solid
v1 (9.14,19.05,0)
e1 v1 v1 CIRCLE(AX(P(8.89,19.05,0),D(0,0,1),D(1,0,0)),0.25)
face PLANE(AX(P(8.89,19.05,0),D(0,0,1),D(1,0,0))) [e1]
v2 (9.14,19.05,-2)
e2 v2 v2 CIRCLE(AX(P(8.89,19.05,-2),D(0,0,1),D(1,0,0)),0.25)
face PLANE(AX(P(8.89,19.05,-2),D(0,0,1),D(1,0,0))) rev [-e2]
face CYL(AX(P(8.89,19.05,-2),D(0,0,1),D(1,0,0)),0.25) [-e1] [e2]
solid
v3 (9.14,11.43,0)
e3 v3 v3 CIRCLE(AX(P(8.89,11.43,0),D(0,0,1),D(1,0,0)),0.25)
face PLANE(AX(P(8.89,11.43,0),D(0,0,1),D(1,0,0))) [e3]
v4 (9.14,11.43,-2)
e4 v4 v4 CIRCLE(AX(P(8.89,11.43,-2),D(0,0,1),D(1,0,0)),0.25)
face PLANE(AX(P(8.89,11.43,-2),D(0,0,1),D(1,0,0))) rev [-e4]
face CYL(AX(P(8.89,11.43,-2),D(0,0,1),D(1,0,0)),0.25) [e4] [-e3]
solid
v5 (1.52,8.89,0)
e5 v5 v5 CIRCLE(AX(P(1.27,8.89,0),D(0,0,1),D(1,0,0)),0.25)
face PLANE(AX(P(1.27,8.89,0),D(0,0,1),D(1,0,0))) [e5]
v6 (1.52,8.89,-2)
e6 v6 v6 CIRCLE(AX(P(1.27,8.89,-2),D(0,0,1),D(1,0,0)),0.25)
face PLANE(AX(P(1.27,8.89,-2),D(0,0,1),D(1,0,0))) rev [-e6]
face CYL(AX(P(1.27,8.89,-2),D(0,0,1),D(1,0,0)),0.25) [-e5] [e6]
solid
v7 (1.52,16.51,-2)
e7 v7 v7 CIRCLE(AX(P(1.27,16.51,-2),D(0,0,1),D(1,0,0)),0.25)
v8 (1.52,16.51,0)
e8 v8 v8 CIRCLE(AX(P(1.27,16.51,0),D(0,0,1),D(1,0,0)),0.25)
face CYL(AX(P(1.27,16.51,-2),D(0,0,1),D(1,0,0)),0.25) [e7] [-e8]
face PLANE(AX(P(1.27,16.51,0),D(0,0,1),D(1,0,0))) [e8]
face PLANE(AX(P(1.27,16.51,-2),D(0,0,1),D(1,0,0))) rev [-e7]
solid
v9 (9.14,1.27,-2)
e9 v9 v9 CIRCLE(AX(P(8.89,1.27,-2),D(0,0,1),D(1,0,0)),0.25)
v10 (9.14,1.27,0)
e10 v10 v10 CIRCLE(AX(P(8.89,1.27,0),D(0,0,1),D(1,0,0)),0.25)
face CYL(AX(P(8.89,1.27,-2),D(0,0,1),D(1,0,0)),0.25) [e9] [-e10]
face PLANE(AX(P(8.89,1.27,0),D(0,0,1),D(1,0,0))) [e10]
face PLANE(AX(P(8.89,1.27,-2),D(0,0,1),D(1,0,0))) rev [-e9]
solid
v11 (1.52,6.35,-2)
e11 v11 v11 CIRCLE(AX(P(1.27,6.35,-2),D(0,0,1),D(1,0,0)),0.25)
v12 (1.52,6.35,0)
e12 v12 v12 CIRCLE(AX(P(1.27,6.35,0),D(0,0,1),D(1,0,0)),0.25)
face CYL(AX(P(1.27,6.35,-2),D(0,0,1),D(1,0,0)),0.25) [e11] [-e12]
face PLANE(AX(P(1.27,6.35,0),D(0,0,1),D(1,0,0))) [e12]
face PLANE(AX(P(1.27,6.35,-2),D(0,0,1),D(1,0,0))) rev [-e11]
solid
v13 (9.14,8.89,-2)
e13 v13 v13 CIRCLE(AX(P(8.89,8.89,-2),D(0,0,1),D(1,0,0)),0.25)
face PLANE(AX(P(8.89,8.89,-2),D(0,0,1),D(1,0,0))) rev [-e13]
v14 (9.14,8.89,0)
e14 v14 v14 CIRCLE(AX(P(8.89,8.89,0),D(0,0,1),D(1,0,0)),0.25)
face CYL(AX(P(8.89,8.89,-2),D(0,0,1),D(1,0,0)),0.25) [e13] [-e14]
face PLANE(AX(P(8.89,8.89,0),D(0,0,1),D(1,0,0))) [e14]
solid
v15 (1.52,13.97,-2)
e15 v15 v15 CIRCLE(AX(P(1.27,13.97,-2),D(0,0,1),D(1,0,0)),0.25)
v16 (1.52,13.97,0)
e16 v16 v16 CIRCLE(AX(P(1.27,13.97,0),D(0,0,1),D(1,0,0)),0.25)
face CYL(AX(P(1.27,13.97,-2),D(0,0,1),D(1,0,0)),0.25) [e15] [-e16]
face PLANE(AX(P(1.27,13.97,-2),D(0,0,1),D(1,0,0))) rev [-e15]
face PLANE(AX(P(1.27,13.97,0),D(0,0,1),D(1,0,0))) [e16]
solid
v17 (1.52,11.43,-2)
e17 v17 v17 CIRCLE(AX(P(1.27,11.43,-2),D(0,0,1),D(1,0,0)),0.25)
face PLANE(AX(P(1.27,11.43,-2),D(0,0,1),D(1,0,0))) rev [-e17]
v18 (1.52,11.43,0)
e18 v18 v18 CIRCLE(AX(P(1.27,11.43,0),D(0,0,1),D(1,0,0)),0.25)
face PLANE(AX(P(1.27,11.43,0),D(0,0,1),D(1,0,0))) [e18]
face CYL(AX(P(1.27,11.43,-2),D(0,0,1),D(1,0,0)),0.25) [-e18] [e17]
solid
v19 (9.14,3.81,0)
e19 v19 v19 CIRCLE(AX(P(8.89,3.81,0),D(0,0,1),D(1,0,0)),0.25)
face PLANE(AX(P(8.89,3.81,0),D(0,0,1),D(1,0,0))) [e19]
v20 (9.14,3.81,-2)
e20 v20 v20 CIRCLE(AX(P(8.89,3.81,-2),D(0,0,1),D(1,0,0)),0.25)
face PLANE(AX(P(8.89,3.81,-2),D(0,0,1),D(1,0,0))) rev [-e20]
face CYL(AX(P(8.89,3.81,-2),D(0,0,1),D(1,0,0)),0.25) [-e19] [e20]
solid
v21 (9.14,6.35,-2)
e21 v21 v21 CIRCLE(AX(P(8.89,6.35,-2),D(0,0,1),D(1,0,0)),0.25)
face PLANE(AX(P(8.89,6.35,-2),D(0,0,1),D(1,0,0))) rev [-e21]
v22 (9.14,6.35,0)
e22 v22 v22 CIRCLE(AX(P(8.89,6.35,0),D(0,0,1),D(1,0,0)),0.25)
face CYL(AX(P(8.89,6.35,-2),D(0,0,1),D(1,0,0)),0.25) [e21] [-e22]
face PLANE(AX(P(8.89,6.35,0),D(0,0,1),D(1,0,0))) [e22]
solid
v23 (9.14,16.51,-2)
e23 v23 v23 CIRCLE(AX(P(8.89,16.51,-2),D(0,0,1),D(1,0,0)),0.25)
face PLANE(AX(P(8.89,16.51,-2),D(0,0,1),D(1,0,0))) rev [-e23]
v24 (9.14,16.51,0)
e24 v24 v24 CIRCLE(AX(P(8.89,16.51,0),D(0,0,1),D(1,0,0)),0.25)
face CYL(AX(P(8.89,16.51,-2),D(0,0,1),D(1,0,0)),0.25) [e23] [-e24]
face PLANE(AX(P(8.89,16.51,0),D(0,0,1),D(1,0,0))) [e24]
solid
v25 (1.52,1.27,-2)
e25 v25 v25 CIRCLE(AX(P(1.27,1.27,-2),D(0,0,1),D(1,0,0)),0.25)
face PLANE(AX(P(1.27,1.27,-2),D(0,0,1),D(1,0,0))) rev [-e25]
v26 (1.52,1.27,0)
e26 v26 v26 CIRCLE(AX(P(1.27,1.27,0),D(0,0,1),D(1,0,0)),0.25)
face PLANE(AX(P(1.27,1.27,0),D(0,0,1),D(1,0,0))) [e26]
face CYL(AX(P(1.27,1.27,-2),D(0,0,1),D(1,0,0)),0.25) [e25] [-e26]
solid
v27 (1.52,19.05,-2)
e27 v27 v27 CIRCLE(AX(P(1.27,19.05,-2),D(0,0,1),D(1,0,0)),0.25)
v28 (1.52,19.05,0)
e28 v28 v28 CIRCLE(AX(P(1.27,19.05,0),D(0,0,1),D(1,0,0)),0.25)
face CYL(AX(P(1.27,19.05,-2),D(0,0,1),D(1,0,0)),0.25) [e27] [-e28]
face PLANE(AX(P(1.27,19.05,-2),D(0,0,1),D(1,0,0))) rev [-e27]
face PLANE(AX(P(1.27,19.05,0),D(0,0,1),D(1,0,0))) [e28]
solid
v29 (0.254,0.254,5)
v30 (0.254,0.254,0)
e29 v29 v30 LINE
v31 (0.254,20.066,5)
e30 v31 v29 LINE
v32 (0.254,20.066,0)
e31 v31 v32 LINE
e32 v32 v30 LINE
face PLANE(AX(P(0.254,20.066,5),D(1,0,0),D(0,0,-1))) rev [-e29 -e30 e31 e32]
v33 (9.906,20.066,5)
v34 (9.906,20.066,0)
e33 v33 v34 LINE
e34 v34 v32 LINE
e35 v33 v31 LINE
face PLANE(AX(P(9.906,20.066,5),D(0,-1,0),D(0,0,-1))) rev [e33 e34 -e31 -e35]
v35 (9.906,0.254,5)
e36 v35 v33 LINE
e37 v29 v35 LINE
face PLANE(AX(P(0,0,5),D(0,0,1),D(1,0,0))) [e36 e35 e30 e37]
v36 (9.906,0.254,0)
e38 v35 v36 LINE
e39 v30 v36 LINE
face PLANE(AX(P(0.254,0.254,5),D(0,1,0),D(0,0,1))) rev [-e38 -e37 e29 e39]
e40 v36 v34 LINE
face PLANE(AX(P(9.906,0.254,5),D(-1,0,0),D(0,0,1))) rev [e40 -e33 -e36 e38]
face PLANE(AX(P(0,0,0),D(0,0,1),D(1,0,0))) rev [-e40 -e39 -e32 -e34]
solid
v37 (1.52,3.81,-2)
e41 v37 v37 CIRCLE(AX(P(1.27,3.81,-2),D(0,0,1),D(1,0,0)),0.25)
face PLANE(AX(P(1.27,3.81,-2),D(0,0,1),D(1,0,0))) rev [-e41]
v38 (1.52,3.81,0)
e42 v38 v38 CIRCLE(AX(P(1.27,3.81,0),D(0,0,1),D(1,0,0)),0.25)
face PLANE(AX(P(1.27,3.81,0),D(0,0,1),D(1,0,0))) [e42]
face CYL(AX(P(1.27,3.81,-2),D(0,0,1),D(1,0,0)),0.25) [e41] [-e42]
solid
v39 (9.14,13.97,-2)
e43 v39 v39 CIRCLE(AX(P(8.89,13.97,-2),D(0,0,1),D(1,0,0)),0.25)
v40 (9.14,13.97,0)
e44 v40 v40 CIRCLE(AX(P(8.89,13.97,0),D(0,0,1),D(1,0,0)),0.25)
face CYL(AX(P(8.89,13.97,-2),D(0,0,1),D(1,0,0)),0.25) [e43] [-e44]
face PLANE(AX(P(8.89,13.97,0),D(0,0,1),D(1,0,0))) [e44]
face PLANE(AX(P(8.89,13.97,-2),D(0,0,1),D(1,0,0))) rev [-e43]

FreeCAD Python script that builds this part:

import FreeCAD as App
import Part
import Sketcher


def add_polygon(sketch, points):
    """Adds a closed chain of lines whose ends are joined by coincident constraints."""
    first, n = sketch.GeometryCount, len(points)
    for a, b in zip(points, points[1:] + points[:1]):
        sketch.addGeometry(Part.LineSegment(App.Vector(*a, 0), App.Vector(*b, 0)), False)
    for i in range(n):
        sketch.addConstraint(Sketcher.Constraint("Coincident", first + i, 2, first + (i + 1) % n, 1))

doc = App.newDocument("Part")
body = doc.addObject("PartDesign::Body", "Body")

# Sketch on XY plane
sketch1 = body.newObject("Sketcher::SketchObject", "Sketch")
sketch1.AttachmentSupport = (doc.getObject("XY_Plane"), [""])
sketch1.MapMode = "FlatFace"
add_polygon(sketch1, [(0.254, 20.066), (0.254, 0.254), (9.906, 0.254), (9.906, 20.066)])  # lines 0-3
sketch1.addConstraint([
    Sketcher.Constraint("Vertical", 0),
    Sketcher.Constraint("Horizontal", 1),
    Sketcher.Constraint("Vertical", 2),
    Sketcher.Constraint("Horizontal", 3),
    Sketcher.Constraint("DistanceX", 1, 1, 1, 2, 9.652),
    Sketcher.Constraint("DistanceY", 0, 2, 0, 1, 19.812),
    Sketcher.Constraint("DistanceX", -1, 1, 0, 2, 0.254),
    Sketcher.Constraint("DistanceY", -1, 1, 0, 2, 0.254),
])
pad1 = body.newObject("PartDesign::Pad", "Pad")
pad1.Profile = sketch1
pad1.Length = 5
body2 = doc.addObject("PartDesign::Body", "Body001")

# Sketch on XY plane
sketch2 = body2.newObject("Sketcher::SketchObject", "Sketch001")
sketch2.AttachmentSupport = (doc.getObject("XY_Plane001"), [""])
sketch2.MapMode = "FlatFace"
sketch2.addGeometry(Part.Circle(App.Vector(1.27, 1.27, 0), App.Vector(0, 0, 1), 0.25), False)
sketch2.addConstraint([
    Sketcher.Constraint("Diameter", 0, 0.5),
    Sketcher.Constraint("DistanceX", -1, 1, 0, 3, 1.27),
    Sketcher.Constraint("DistanceY", -1, 1, 0, 3, 1.27),
])
pad2 = body2.newObject("PartDesign::Pad", "Pad001")
pad2.Profile = sketch2
pad2.Length = 2
pad2.Reversed = True
body3 = doc.addObject("PartDesign::Body", "Body002")

# Sketch on XY plane
sketch3 = body3.newObject("Sketcher::SketchObject", "Sketch002")
sketch3.AttachmentSupport = (doc.getObject("XY_Plane002"), [""])
sketch3.MapMode = "FlatFace"
sketch3.addGeometry(Part.Circle(App.Vector(1.27, 3.81, 0), App.Vector(0, 0, 1), 0.25), False)
sketch3.addConstraint([
    Sketcher.Constraint("Diameter", 0, 0.5),
    Sketcher.Constraint("DistanceX", -1, 1, 0, 3, 1.27),
    Sketcher.Constraint("DistanceY", -1, 1, 0, 3, 3.81),
])
pad3 = body3.newObject("PartDesign::Pad", "Pad002")
pad3.Profile = sketch3
pad3.Length = 2
pad3.Reversed = True
body4 = doc.addObject("PartDesign::Body", "Body003")

# Sketch on XY plane
sketch4 = body4.newObject("Sketcher::SketchObject", "Sketch003")
sketch4.AttachmentSupport = (doc.getObject("XY_Plane003"), [""])
sketch4.MapMode = "FlatFace"
sketch4.addGeometry(Part.Circle(App.Vector(1.27, 6.35, 0), App.Vector(0, 0, 1), 0.25), False)
sketch4.addConstraint([
    Sketcher.Constraint("Diameter", 0, 0.5),
    Sketcher.Constraint("DistanceX", -1, 1, 0, 3, 1.27),
    Sketcher.Constraint("DistanceY", -1, 1, 0, 3, 6.35),
])
pad4 = body4.newObject("PartDesign::Pad", "Pad003")
pad4.Profile = sketch4
pad4.Length = 2
pad4.Reversed = True
body5 = doc.addObject("PartDesign::Body", "Body004")

# Sketch on XY plane
sketch5 = body5.newObject("Sketcher::SketchObject", "Sketch004")
sketch5.AttachmentSupport = (doc.getObject("XY_Plane004"), [""])
sketch5.MapMode = "FlatFace"
sketch5.addGeometry(Part.Circle(App.Vector(1.27, 8.89, 0), App.Vector(0, 0, 1), 0.25), False)
sketch5.addConstraint([
    Sketcher.Constraint("Diameter", 0, 0.5),
    Sketcher.Constraint("DistanceX", -1, 1, 0, 3, 1.27),
    Sketcher.Constraint("DistanceY", -1, 1, 0, 3, 8.89),
])
pad5 = body5.newObject("PartDesign::Pad", "Pad004")
pad5.Profile = sketch5
pad5.Length = 2
pad5.Reversed = True
body6 = doc.addObject("PartDesign::Body", "Body005")

# Sketch on XY plane
sketch6 = body6.newObject("Sketcher::SketchObject", "Sketch005")
sketch6.AttachmentSupport = (doc.getObject("XY_Plane005"), [""])
sketch6.MapMode = "FlatFace"
sketch6.addGeometry(Part.Circle(App.Vector(1.27, 11.43, 0), App.Vector(0, 0, 1), 0.25), False)
sketch6.addConstraint([
    Sketcher.Constraint("Diameter", 0, 0.5),
    Sketcher.Constraint("DistanceX", -1, 1, 0, 3, 1.27),
    Sketcher.Constraint("DistanceY", -1, 1, 0, 3, 11.43),
])
pad6 = body6.newObject("PartDesign::Pad", "Pad005")
pad6.Profile = sketch6
pad6.Length = 2
pad6.Reversed = True
body7 = doc.addObject("PartDesign::Body", "Body006")

# Sketch on XY plane
sketch7 = body7.newObject("Sketcher::SketchObject", "Sketch006")
sketch7.AttachmentSupport = (doc.getObject("XY_Plane006"), [""])
sketch7.MapMode = "FlatFace"
sketch7.addGeometry(Part.Circle(App.Vector(1.27, 13.97, 0), App.Vector(0, 0, 1), 0.25), False)
sketch7.addConstraint([
    Sketcher.Constraint("Diameter", 0, 0.5),
    Sketcher.Constraint("DistanceX", -1, 1, 0, 3, 1.27),
    Sketcher.Constraint("DistanceY", -1, 1, 0, 3, 13.97),
])
pad7 = body7.newObject("PartDesign::Pad", "Pad006")
pad7.Profile = sketch7
pad7.Length = 2
pad7.Reversed = True
body8 = doc.addObject("PartDesign::Body", "Body007")

# Sketch on XY plane
sketch8 = body8.newObject("Sketcher::SketchObject", "Sketch007")
sketch8.AttachmentSupport = (doc.getObject("XY_Plane007"), [""])
sketch8.MapMode = "FlatFace"
sketch8.addGeometry(Part.Circle(App.Vector(1.27, 16.51, 0), App.Vector(0, 0, 1), 0.25), False)
sketch8.addConstraint([
    Sketcher.Constraint("Diameter", 0, 0.5),
    Sketcher.Constraint("DistanceX", -1, 1, 0, 3, 1.27),
    Sketcher.Constraint("DistanceY", -1, 1, 0, 3, 16.51),
])
pad8 = body8.newObject("PartDesign::Pad", "Pad007")
pad8.Profile = sketch8
pad8.Length = 2
pad8.Reversed = True
body9 = doc.addObject("PartDesign::Body", "Body008")

# Sketch on XY plane
sketch9 = body9.newObject("Sketcher::SketchObject", "Sketch008")
sketch9.AttachmentSupport = (doc.getObject("XY_Plane008"), [""])
sketch9.MapMode = "FlatFace"
sketch9.addGeometry(Part.Circle(App.Vector(1.27, 19.05, 0), App.Vector(0, 0, 1), 0.25), False)
sketch9.addConstraint([
    Sketcher.Constraint("Diameter", 0, 0.5),
    Sketcher.Constraint("DistanceX", -1, 1, 0, 3, 1.27),
    Sketcher.Constraint("DistanceY", -1, 1, 0, 3, 19.05),
])
pad9 = body9.newObject("PartDesign::Pad", "Pad008")
pad9.Profile = sketch9
pad9.Length = 2
pad9.Reversed = True
body10 = doc.addObject("PartDesign::Body", "Body009")

# Sketch on XY plane
sketch10 = body10.newObject("Sketcher::SketchObject", "Sketch009")
sketch10.AttachmentSupport = (doc.getObject("XY_Plane009"), [""])
sketch10.MapMode = "FlatFace"
sketch10.addGeometry(Part.Circle(App.Vector(8.89, 1.27, 0), App.Vector(0, 0, 1), 0.25), False)
sketch10.addConstraint([
    Sketcher.Constraint("Diameter", 0, 0.5),
    Sketcher.Constraint("DistanceX", -1, 1, 0, 3, 8.89),
    Sketcher.Constraint("DistanceY", -1, 1, 0, 3, 1.27),
])
pad10 = body10.newObject("PartDesign::Pad", "Pad009")
pad10.Profile = sketch10
pad10.Length = 2
pad10.Reversed = True
body11 = doc.addObject("PartDesign::Body", "Body010")

# Sketch on XY plane
sketch11 = body11.newObject("Sketcher::SketchObject", "Sketch010")
sketch11.AttachmentSupport = (doc.getObject("XY_Plane010"), [""])
sketch11.MapMode = "FlatFace"
sketch11.addGeometry(Part.Circle(App.Vector(8.89, 3.81, 0), App.Vector(0, 0, 1), 0.25), False)
sketch11.addConstraint([
    Sketcher.Constraint("Diameter", 0, 0.5),
    Sketcher.Constraint("DistanceX", -1, 1, 0, 3, 8.89),
    Sketcher.Constraint("DistanceY", -1, 1, 0, 3, 3.81),
])
pad11 = body11.newObject("PartDesign::Pad", "Pad010")
pad11.Profile = sketch11
pad11.Length = 2
pad11.Reversed = True
body12 = doc.addObject("PartDesign::Body", "Body011")

# Sketch on XY plane
sketch12 = body12.newObject("Sketcher::SketchObject", "Sketch011")
sketch12.AttachmentSupport = (doc.getObject("XY_Plane011"), [""])
sketch12.MapMode = "FlatFace"
sketch12.addGeometry(Part.Circle(App.Vector(8.89, 6.35, 0), App.Vector(0, 0, 1), 0.25), False)
sketch12.addConstraint([
    Sketcher.Constraint("Diameter", 0, 0.5),
    Sketcher.Constraint("DistanceX", -1, 1, 0, 3, 8.89),
    Sketcher.Constraint("DistanceY", -1, 1, 0, 3, 6.35),
])
pad12 = body12.newObject("PartDesign::Pad", "Pad011")
pad12.Profile = sketch12
pad12.Length = 2
pad12.Reversed = True
body13 = doc.addObject("PartDesign::Body", "Body012")

# Sketch on XY plane
sketch13 = body13.newObject("Sketcher::SketchObject", "Sketch012")
sketch13.AttachmentSupport = (doc.getObject("XY_Plane012"), [""])
sketch13.MapMode = "FlatFace"
sketch13.addGeometry(Part.Circle(App.Vector(8.89, 8.89, 0), App.Vector(0, 0, 1), 0.25), False)
sketch13.addConstraint([
    Sketcher.Constraint("Diameter", 0, 0.5),
    Sketcher.Constraint("DistanceX", -1, 1, 0, 3, 8.89),
    Sketcher.Constraint("DistanceY", -1, 1, 0, 3, 8.89),
])
pad13 = body13.newObject("PartDesign::Pad", "Pad012")
pad13.Profile = sketch13
pad13.Length = 2
pad13.Reversed = True
body14 = doc.addObject("PartDesign::Body", "Body013")

# Sketch on XY plane
sketch14 = body14.newObject("Sketcher::SketchObject", "Sketch013")
sketch14.AttachmentSupport = (doc.getObject("XY_Plane013"), [""])
sketch14.MapMode = "FlatFace"
sketch14.addGeometry(Part.Circle(App.Vector(8.89, 11.43, 0), App.Vector(0, 0, 1), 0.25), False)
sketch14.addConstraint([
    Sketcher.Constraint("Diameter", 0, 0.5),
    Sketcher.Constraint("DistanceX", -1, 1, 0, 3, 8.89),
    Sketcher.Constraint("DistanceY", -1, 1, 0, 3, 11.43),
])
pad14 = body14.newObject("PartDesign::Pad", "Pad013")
pad14.Profile = sketch14
pad14.Length = 2
pad14.Reversed = True
body15 = doc.addObject("PartDesign::Body", "Body014")

# Sketch on XY plane
sketch15 = body15.newObject("Sketcher::SketchObject", "Sketch014")
sketch15.AttachmentSupport = (doc.getObject("XY_Plane014"), [""])
sketch15.MapMode = "FlatFace"
sketch15.addGeometry(Part.Circle(App.Vector(8.89, 13.97, 0), App.Vector(0, 0, 1), 0.25), False)
sketch15.addConstraint([
    Sketcher.Constraint("Diameter", 0, 0.5),
    Sketcher.Constraint("DistanceX", -1, 1, 0, 3, 8.89),
    Sketcher.Constraint("DistanceY", -1, 1, 0, 3, 13.97),
])
pad15 = body15.newObject("PartDesign::Pad", "Pad014")
pad15.Profile = sketch15
pad15.Length = 2
pad15.Reversed = True
body16 = doc.addObject("PartDesign::Body", "Body015")

# Sketch on XY plane
sketch16 = body16.newObject("Sketcher::SketchObject", "Sketch015")
sketch16.AttachmentSupport = (doc.getObject("XY_Plane015"), [""])
sketch16.MapMode = "FlatFace"
sketch16.addGeometry(Part.Circle(App.Vector(8.89, 16.51, 0), App.Vector(0, 0, 1), 0.25), False)
sketch16.addConstraint([
    Sketcher.Constraint("Diameter", 0, 0.5),
    Sketcher.Constraint("DistanceX", -1, 1, 0, 3, 8.89),
    Sketcher.Constraint("DistanceY", -1, 1, 0, 3, 16.51),
])
pad16 = body16.newObject("PartDesign::Pad", "Pad015")
pad16.Profile = sketch16
pad16.Length = 2
pad16.Reversed = True
body17 = doc.addObject("PartDesign::Body", "Body016")

# Sketch on XY plane
sketch17 = body17.newObject("Sketcher::SketchObject", "Sketch016")
sketch17.AttachmentSupport = (doc.getObject("XY_Plane016"), [""])
sketch17.MapMode = "FlatFace"
sketch17.addGeometry(Part.Circle(App.Vector(8.89, 19.05, 0), App.Vector(0, 0, 1), 0.25), False)
sketch17.addConstraint([
    Sketcher.Constraint("Diameter", 0, 0.5),
    Sketcher.Constraint("DistanceX", -1, 1, 0, 3, 8.89),
    Sketcher.Constraint("DistanceY", -1, 1, 0, 3, 19.05),
])
pad17 = body17.newObject("PartDesign::Pad", "Pad016")
pad17.Profile = sketch17
pad17.Length = 2
pad17.Reversed = True

doc.recompute()
